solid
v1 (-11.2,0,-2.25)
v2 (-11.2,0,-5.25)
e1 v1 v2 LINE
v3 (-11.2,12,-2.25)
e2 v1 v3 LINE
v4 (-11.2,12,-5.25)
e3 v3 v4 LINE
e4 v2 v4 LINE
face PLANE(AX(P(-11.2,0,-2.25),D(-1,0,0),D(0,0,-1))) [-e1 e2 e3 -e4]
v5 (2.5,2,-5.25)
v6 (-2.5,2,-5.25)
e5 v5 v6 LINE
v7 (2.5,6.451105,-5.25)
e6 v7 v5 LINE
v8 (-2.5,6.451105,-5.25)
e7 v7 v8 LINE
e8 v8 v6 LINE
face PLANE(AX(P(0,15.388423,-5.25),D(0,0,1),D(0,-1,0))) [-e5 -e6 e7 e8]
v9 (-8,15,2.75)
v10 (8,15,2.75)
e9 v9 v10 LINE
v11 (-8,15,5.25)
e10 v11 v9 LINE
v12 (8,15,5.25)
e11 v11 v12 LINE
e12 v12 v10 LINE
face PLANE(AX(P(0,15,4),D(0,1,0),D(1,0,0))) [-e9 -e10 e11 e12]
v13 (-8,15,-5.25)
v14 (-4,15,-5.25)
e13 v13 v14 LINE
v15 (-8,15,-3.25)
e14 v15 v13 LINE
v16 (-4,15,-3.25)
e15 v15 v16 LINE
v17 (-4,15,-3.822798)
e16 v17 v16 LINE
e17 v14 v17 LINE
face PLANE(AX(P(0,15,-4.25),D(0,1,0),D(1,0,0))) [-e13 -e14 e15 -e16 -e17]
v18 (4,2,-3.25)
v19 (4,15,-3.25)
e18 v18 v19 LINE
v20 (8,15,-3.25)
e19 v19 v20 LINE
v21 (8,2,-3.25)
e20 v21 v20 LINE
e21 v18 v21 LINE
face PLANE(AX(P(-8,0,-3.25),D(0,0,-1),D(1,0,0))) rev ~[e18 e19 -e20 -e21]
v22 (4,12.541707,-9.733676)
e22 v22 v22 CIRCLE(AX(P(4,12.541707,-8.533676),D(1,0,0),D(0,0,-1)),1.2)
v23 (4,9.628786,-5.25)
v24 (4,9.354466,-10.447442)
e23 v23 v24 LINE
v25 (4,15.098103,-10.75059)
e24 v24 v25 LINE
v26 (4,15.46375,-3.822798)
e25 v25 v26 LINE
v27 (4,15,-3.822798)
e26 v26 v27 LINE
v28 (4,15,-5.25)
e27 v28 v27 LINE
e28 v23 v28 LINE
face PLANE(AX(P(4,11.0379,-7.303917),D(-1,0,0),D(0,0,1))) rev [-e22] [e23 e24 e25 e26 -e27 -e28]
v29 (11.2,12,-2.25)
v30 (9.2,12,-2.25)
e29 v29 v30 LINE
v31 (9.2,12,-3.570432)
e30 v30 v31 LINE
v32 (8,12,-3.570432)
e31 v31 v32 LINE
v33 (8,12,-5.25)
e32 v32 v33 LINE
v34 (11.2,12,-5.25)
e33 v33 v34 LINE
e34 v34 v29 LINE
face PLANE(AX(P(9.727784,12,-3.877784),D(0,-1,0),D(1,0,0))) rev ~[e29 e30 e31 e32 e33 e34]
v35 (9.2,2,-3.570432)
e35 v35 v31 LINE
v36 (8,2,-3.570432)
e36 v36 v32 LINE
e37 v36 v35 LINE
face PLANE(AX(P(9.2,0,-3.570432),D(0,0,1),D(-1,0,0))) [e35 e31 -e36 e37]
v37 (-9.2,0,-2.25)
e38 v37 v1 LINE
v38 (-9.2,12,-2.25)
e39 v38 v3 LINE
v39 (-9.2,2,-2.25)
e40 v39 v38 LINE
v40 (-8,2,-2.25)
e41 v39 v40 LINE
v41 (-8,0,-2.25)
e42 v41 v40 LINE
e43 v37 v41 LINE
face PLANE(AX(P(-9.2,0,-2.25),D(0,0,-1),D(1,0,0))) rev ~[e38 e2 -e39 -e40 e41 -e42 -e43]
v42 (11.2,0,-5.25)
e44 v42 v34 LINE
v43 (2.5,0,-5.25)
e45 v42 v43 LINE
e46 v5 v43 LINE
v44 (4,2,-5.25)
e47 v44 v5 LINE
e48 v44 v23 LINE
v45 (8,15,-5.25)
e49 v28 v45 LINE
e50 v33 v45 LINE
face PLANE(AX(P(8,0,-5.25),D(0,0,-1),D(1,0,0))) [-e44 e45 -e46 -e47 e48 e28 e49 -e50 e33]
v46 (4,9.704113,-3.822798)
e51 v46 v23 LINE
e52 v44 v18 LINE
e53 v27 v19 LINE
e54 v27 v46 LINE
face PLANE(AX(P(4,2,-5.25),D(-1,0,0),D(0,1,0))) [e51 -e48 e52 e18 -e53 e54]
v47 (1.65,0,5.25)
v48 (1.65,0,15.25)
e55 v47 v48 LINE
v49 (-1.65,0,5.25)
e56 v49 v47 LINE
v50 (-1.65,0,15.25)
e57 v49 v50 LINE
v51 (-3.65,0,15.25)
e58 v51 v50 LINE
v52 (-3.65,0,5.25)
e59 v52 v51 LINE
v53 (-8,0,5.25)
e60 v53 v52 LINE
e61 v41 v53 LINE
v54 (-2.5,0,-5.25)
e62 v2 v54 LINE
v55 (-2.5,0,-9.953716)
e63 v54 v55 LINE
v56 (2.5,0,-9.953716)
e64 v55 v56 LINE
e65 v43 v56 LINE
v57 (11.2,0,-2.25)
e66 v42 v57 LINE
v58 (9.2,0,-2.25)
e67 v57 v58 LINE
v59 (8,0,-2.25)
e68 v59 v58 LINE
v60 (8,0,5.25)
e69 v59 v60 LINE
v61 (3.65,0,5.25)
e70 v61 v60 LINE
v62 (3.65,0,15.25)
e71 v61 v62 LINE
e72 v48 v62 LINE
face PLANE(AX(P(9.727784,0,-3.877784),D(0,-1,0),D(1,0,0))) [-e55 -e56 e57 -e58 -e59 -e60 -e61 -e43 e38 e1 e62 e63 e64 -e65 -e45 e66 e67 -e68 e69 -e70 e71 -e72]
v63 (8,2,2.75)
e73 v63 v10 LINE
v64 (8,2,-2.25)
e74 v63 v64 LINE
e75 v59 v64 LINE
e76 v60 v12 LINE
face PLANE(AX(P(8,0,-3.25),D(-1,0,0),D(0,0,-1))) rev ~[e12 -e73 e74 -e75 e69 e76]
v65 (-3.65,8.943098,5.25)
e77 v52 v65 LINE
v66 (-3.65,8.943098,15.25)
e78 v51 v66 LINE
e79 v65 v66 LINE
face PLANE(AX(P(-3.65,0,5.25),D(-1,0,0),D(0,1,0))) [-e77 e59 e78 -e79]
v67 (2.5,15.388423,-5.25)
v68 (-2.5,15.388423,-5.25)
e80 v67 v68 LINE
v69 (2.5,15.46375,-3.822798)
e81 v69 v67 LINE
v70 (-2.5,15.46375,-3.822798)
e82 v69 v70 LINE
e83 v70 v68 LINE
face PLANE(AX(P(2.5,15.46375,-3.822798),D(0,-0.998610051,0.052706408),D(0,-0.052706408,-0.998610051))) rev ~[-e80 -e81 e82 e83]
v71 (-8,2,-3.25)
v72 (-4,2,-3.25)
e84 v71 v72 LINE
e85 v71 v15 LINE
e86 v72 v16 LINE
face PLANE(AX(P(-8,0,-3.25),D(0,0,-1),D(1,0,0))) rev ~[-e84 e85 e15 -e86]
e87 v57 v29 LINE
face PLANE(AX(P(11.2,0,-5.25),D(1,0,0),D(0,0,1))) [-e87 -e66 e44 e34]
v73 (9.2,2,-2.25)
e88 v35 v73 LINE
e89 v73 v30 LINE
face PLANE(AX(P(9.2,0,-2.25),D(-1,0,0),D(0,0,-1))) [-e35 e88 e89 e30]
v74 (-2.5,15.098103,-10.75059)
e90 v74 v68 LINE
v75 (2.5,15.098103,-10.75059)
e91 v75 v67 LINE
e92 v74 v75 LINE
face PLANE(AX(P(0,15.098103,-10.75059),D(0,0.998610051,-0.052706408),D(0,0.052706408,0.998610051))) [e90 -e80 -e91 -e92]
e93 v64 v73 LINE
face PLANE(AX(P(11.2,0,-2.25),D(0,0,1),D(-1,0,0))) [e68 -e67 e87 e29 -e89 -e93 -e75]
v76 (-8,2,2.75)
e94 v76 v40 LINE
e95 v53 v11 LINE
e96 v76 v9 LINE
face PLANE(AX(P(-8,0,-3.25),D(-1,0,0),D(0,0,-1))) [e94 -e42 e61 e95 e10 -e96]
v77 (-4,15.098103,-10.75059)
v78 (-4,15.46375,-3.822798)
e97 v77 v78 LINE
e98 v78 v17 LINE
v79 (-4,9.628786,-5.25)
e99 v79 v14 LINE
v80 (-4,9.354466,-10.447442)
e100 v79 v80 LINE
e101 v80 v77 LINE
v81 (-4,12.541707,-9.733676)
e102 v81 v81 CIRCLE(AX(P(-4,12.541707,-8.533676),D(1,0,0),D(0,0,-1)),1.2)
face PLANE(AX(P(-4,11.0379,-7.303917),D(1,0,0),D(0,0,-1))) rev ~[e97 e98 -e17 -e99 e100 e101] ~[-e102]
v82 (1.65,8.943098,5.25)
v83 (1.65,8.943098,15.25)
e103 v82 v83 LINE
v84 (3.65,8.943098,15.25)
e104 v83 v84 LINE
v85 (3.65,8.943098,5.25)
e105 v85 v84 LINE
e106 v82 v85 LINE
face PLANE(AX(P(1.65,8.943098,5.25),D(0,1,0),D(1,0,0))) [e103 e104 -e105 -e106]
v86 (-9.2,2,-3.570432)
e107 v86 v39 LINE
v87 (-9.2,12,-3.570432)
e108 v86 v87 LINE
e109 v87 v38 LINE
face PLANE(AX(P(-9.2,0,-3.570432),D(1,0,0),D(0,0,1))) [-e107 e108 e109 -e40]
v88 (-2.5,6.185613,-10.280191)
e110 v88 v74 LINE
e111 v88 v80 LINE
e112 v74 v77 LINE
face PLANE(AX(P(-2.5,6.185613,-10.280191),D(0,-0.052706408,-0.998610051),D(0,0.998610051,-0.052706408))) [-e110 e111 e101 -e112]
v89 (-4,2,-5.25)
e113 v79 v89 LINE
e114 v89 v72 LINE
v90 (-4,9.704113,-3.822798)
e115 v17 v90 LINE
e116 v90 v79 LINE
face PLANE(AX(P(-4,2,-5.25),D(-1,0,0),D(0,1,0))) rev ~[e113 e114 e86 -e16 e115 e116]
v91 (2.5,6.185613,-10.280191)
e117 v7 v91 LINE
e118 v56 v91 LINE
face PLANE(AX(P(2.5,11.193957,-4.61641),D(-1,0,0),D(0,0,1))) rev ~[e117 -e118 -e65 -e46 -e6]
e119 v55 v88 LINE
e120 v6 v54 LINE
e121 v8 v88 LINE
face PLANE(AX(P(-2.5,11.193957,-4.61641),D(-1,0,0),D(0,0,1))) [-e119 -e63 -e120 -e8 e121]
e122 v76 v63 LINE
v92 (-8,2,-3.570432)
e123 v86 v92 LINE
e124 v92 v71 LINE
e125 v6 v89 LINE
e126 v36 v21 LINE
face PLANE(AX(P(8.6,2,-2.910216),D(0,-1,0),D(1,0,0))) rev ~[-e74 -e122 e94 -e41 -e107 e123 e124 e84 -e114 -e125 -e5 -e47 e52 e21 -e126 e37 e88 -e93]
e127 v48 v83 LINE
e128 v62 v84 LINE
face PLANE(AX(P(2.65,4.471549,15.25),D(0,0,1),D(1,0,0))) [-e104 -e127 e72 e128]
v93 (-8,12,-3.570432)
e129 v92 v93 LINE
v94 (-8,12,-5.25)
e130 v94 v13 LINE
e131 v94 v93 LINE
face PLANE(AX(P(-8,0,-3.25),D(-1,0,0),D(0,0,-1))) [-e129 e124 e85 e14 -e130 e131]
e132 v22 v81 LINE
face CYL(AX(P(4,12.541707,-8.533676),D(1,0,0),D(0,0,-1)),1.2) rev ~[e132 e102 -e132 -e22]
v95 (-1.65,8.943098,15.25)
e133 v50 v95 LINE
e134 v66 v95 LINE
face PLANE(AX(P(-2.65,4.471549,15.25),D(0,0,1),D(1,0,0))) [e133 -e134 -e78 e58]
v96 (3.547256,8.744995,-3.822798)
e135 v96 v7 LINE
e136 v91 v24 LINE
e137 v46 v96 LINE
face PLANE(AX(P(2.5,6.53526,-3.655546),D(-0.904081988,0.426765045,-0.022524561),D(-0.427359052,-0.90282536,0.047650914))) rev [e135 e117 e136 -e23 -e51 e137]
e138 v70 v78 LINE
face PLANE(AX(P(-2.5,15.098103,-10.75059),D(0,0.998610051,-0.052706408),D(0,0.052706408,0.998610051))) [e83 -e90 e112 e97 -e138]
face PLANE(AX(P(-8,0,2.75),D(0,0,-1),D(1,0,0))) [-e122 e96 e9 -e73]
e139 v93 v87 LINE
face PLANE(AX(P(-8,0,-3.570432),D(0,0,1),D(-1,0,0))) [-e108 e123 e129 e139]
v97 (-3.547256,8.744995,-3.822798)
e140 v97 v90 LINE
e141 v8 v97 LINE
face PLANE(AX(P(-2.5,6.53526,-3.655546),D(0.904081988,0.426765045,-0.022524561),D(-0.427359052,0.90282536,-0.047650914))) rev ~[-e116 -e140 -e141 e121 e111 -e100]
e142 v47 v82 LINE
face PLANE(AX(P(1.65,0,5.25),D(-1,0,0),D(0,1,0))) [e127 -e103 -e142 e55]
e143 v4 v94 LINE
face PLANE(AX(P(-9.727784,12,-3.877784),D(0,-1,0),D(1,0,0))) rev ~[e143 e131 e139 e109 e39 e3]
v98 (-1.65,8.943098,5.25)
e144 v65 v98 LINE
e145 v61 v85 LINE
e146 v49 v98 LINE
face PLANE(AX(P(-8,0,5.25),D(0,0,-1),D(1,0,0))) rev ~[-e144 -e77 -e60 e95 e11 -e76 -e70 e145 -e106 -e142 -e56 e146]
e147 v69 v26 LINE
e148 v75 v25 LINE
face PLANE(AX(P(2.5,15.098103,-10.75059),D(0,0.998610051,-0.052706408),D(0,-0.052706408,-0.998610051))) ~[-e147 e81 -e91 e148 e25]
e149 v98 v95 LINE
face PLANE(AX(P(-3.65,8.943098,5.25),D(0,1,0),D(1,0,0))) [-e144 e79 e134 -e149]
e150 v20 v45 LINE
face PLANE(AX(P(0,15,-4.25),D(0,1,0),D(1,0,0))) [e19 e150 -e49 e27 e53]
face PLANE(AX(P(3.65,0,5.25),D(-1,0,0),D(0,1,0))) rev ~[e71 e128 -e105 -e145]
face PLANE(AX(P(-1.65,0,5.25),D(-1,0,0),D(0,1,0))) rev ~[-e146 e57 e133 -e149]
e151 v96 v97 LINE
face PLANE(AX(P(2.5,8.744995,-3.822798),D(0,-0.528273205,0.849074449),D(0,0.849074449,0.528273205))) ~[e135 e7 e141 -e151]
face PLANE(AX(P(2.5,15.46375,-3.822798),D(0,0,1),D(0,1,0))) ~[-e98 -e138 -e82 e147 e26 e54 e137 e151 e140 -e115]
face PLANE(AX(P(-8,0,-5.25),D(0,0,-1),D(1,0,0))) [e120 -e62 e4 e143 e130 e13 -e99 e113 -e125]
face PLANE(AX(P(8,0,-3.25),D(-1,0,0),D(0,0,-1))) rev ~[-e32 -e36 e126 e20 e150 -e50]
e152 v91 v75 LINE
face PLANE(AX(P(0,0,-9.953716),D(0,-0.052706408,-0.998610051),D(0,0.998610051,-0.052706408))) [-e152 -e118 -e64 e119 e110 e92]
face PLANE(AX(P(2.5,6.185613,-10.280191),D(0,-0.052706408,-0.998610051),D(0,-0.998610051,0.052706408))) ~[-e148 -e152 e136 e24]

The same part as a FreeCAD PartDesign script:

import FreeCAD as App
import Part
import Sketcher
from FreeCAD import Vector


def add_polygon(sketch, points):
    """Adds a closed chain of lines whose ends are joined by coincident constraints."""
    first, n = sketch.GeometryCount, len(points)
    for a, b in zip(points, points[1:] + points[:1]):
        sketch.addGeometry(Part.LineSegment(App.Vector(*a, 0), App.Vector(*b, 0)), False)
    for i in range(n):
        sketch.addConstraint(Sketcher.Constraint("Coincident", first + i, 2, first + (i + 1) % n, 1))

doc = App.newDocument("Part")
body = doc.addObject("PartDesign::Body", "Body")

sketch1 = body.newObject("Sketcher::SketchObject", "Sketch")
sketch1.AttachmentSupport = (doc.getObject("XZ_Plane"), [""])
sketch1.MapMode = "FlatFace"
add_polygon(sketch1, [(-8, -3), (-8, 3), (8, 3), (8, -3)])
sketch1.addConstraint([
    Sketcher.Constraint("Vertical", 0),
    Sketcher.Constraint("Horizontal", 1),
    Sketcher.Constraint("Vertical", 2),
    Sketcher.Constraint("Horizontal", 3),
    Sketcher.Constraint("DistanceX", 1, 1, 1, 2, 16.0),
    Sketcher.Constraint("DistanceY", 0, 1, 0, 2, 6.0),
    Sketcher.Constraint("DistanceX", 0, 2, -1, 1, 8.0),
    Sketcher.Constraint("DistanceY", -1, 1, 0, 2, 2.75),
])
pad1 = body.newObject("PartDesign::Pad", "Pad")
pad1.Profile = sketch1
pad1.Length = 2
pad1.Reversed = True

sketch2 = body.newObject("Sketcher::SketchObject", "Sketch001")
sketch2.AttachmentSupport = (doc.getObject("XZ_Plane"), [""])
sketch2.MapMode = "FlatFace"
add_polygon(sketch2, [(-8, -5.2), (-8, -3.2), (8, -3.2), (8, -5.2)])
add_polygon(sketch2, [(-8, 2.8), (-8, 5.2), (8, 5.2), (8, 2.8)])
sketch2.addConstraint([
    Sketcher.Constraint("Vertical", 0),
    Sketcher.Constraint("Horizontal", 1),
    Sketcher.Constraint("Vertical", 2),
    Sketcher.Constraint("Horizontal", 3),
    Sketcher.Constraint("Vertical", 4),
    Sketcher.Constraint("Horizontal", 5),
    Sketcher.Constraint("Vertical", 6),
    Sketcher.Constraint("Horizontal", 7),
    Sketcher.Constraint("Symmetric", 2, 2, 4, 2, -1, 1),
    Sketcher.Constraint("Vertical", 3, 2, 4, 2),
    Sketcher.Constraint("Vertical", 2, 2, 5, 2),
    Sketcher.Constraint("DistanceX", 1, 1, 1, 2, 16.0),
    Sketcher.Constraint("DistanceY", 0, 1, 0, 2, 2.0),
    Sketcher.Constraint("DistanceY", 4, 1, 4, 2, 2.5),
    Sketcher.Constraint("DistanceY", 1, 2, 6, 2, 6.0),
])
pad2 = body.newObject("PartDesign::Pad", "Pad001")
pad2.Profile = sketch2
pad2.Length = 15
pad2.Reversed = True

sketch3 = body.newObject("Sketcher::SketchObject", "Sketch002")
sketch3.AttachmentSupport = (doc.getObject("XY_Plane"), [""])
sketch3.MapMode = "FlatFace"
sketch3.AttachmentOffset = App.Placement(Vector(0, 0, -5.25), App.Rotation())
add_polygon(sketch3, [(4, 28), (4, 2), (-4, 2), (-4, 28)])
sketch3.addConstraint([
    Sketcher.Constraint("Vertical", 0),
    Sketcher.Constraint("Horizontal", 1),
    Sketcher.Constraint("Vertical", 2),
    Sketcher.Constraint("Horizontal", 3),
    Sketcher.Constraint("DistanceX", 1, 2, 1, 1, 8.0),
    Sketcher.Constraint("DistanceY", 0, 2, 0, 1, 26.0),
    Sketcher.Constraint("DistanceX", -1, 1, 0, 2, 4.0),
    Sketcher.Constraint("DistanceY", -1, 1, 0, 2, 2.0),
])
pocket1 = body.newObject("PartDesign::Pocket", "Pocket")
pocket1.Profile = sketch3
pocket1.Length = 2
pocket1.Reversed = True

sketch4 = body.newObject("Sketcher::SketchObject", "Sketch003")
sketch4.AttachmentSupport = (doc.getObject("YZ_Plane"), [""])
sketch4.MapMode = "FlatFace"
add_polygon(sketch4, [(0, -5.2), (0, -10), (15.1, -10.8), (15.4, -5.2)])
sketch4.addConstraint([
    Sketcher.Constraint("Vertical", 0),
    Sketcher.Constraint("Horizontal", 3),
    Sketcher.Constraint("PointOnObject", 0, 2, -2),
    Sketcher.Constraint("Perpendicular", 1, 2),
    Sketcher.Constraint("DistanceY", 2, 2, -1, 1, 5.25),
    Sketcher.Constraint("DistanceX", 3, 2, 3, 1, 15.388423),
    Sketcher.Constraint("DistanceY", 0, 2, 0, 1, 4.703716),
    Sketcher.Constraint("DistanceY", 1, 2, -1, 1, 10.75059),
])
pad3 = body.newObject("PartDesign::Pad", "Pad002")
pad3.Profile = sketch4
pad3.Length = 5
pad3.Midplane = True

sketch5 = body.newObject("Sketcher::SketchObject", "Sketch004")
sketch5.AttachmentSupport = (doc.getObject("YZ_Plane"), [""])
sketch5.MapMode = "FlatFace"
sketch5.AttachmentOffset = App.Placement(Vector(0, 0, 2.5), App.Rotation())
add_polygon(sketch5, [(8.7, -3.8), (6.5, -5.2), (15.4, -5.2), (15.5, -3.8)])
sketch5.addConstraint([
    Sketcher.Constraint("Horizontal", 1),
    Sketcher.Constraint("Horizontal", 3),
    Sketcher.Constraint("DistanceY", 0, 2, -1, 1, 5.25),
    Sketcher.Constraint("DistanceY", 2, 2, -1, 1, 3.822798),
    Sketcher.Constraint("Distance", 2, 1.429188),
    Sketcher.Constraint("DistanceX", 1, 1, 1, 2, 8.937318),
    Sketcher.Constraint("DistanceX", 3, 2, 3, 1, 6.718755),
    Sketcher.Constraint("DistanceX", -1, 1, 2, 2, 15.46375),
])
pad4 = body.newObject("PartDesign::Pad", "Pad003")
pad4.Profile = sketch5
pad4.Length = 5
pad4.Reversed = True

sketch6 = body.newObject("Sketcher::SketchObject", "Sketch005")
sketch6.AttachmentSupport = (doc.getObject("YZ_Plane"), [""])
sketch6.MapMode = "FlatFace"
sketch6.AttachmentOffset = App.Placement(Vector(0, 0, -2.5), App.Rotation())
add_polygon(sketch6, [(6.2, -10.3), (6.5, -5.2), (8.7, -3.8), (15.5, -3.8), (15.1, -10.8)])
sketch6.addConstraint([
    Sketcher.Constraint("Horizontal", 2),
    Sketcher.Constraint("Parallel", 0, 3),
    Sketcher.Constraint("Perpendicular", 3, 4),
    Sketcher.Constraint("DistanceY", 0, 2, -1, 1, 5.25),
    Sketcher.Constraint("DistanceY", 1, 2, -1, 1, 3.822798),
    Sketcher.Constraint("DistanceY", 3, 2, 4, 2, 0.470399),
    Sketcher.Constraint("DistanceX", 2, 1, 2, 2, 6.718755),
    Sketcher.Constraint("DistanceX", -1, 1, 2, 2, 15.46375),
    Sketcher.Constraint("DistanceY", 3, 2, -1, 1, 10.75059),
    Sketcher.Constraint("DistanceX", 0, 2, 1, 2, 2.29389),
])
pad5 = body.newObject("PartDesign::Pad", "Pad004")
pad5.Profile = sketch6
pad5.Length = 1.5
pad5.Reversed = True

sketch7 = body.newObject("Sketcher::SketchObject", "Sketch006")
sketch7.Placement = App.Placement(Vector(0, -0.174248, -3.30142), App.Rotation(Vector(-1, 0, 0), Vector(0, 0.998610051, -0.052706408), Vector(0, -0.052706408, -0.998610051), "ZXY"))
add_polygon(sketch7, [(4, 9.9), (2.5, 6.7), (4, 6.7)])
sketch7.addConstraint([
    Sketcher.Constraint("Horizontal", 1),
    Sketcher.Constraint("Vertical", 2),
    Sketcher.Constraint("DistanceX", 1, 1, 1, 2, 1.5),
    Sketcher.Constraint("DistanceX", -1, 1, 1, 2, 4.0),
    Sketcher.Constraint("Distance", 0, 3.509929),
    Sketcher.Constraint("DistanceY", -1, 1, 2, 2, 9.892111),
])
pocket2 = body.newObject("PartDesign::Pocket", "Pocket001")
pocket2.Profile = sketch7
pocket2.Length = 6.633865
pocket2.Reversed = True
doc.recompute()

mirrored = body.newObject("PartDesign::Mirrored", "Mirrored")
mirrored.Originals = [pad5, pocket2]
mirrored.MirrorPlane = (doc.getObject("YZ_Plane"), [""])
body.Tip = mirrored

sketch8 = body.newObject("Sketcher::SketchObject", "Sketch007")
sketch8.AttachmentSupport = (doc.getObject("YZ_Plane"), [""])
sketch8.MapMode = "FlatFace"
sketch8.AttachmentOffset = App.Placement(Vector(0, 0, 4), App.Rotation())
sketch8.addGeometry(Part.Circle(Vector(12.5, -8.5, 0), Vector(0, 0, 1), 1.2), False)
sketch8.addConstraint([
    Sketcher.Constraint("Diameter", 0, 2.4),
    Sketcher.Constraint("DistanceX", -1, 1, 0, 3, 12.541707),
    Sketcher.Constraint("DistanceY", 0, 3, -1, 1, 8.533676),
])
pocket3 = body.newObject("PartDesign::Pocket", "Pocket002")
pocket3.Profile = sketch8
pocket3.Length = 8

sketch9 = body.newObject("Sketcher::SketchObject", "Sketch008")
sketch9.AttachmentSupport = (doc.getObject("XZ_Plane"), [""])
sketch9.MapMode = "FlatFace"
add_polygon(sketch9, [(8, -2.3), (8, -3.6), (9.2, -3.6), (9.2, -2.3)])
add_polygon(sketch9, [(-9.2, -2.3), (-9.2, -3.6), (-8, -3.6), (-8, -2.3)])
sketch9.addConstraint([
    Sketcher.Constraint("Vertical", 0),
    Sketcher.Constraint("Horizontal", 1),
    Sketcher.Constraint("Vertical", 2),
    Sketcher.Constraint("Horizontal", 3),
    Sketcher.Constraint("Vertical", 4),
    Sketcher.Constraint("Horizontal", 5),
    Sketcher.Constraint("Vertical", 6),
    Sketcher.Constraint("Horizontal", 7),
    Sketcher.Constraint("Symmetric", 1, 2, 4, 2, -2),
    Sketcher.Constraint("Symmetric", 3, 2, 6, 2, -2),
    Sketcher.Constraint("DistanceX", 1, 1, 1, 2, 1.2),
    Sketcher.Constraint("DistanceX", -1, 1, 0, 2, 8.0),
    Sketcher.Constraint("DistanceY", 2, 2, -1, 1, 2.25),
    Sketcher.Constraint("DistanceY", 0, 2, 0, 1, 1.320432),
])
pad6 = body.newObject("PartDesign::Pad", "Pad005")
pad6.Profile = sketch9
pad6.Length = 2
pad6.Reversed = True

sketch10 = body.newObject("Sketcher::SketchObject", "Sketch009")
sketch10.AttachmentSupport = (doc.getObject("XZ_Plane"), [""])
sketch10.MapMode = "FlatFace"
add_polygon(sketch10, [(8, -3.6), (8, -5.2), (11.2, -5.2), (11.2, -2.2), (9.2, -2.2), (9.2, -3.6)])
add_polygon(sketch10, [(-8, -5.2), (-8, -3.6), (-9.2, -3.6), (-9.2, -2.2), (-11.2, -2.2), (-11.2, -5.2)])
sketch10.addConstraint([
    Sketcher.Constraint("Vertical", 0),
    Sketcher.Constraint("Horizontal", 1),
    Sketcher.Constraint("Vertical", 2),
    Sketcher.Constraint("Horizontal", 3),
    Sketcher.Constraint("Vertical", 4),
    Sketcher.Constraint("Horizontal", 5),
    Sketcher.Constraint("Vertical", 6),
    Sketcher.Constraint("Horizontal", 7),
    Sketcher.Constraint("Vertical", 8),
    Sketcher.Constraint("Horizontal", 9),
    Sketcher.Constraint("Vertical", 10),
    Sketcher.Constraint("Horizontal", 11),
    Sketcher.Constraint("Symmetric", 5, 2, 6, 2, -2),
    Sketcher.Constraint("Symmetric", 3, 2, 8, 2, -2),
    Sketcher.Constraint("Symmetric", 1, 2, 10, 2, -2),
    Sketcher.Constraint("DistanceX", 3, 2, 3, 1, 2.0),
    Sketcher.Constraint("DistanceY", 2, 1, 2, 2, 3.0),
    Sketcher.Constraint("DistanceX", 1, 1, 1, 2, 3.2),
    Sketcher.Constraint("DistanceX", -1, 1, 0, 2, 8.0),
    Sketcher.Constraint("DistanceY", 0, 2, -1, 1, 5.25),
    Sketcher.Constraint("DistanceY", 0, 2, 0, 1, 1.679568),
])
pad7 = body.newObject("PartDesign::Pad", "Pad006")
pad7.Profile = sketch10
pad7.Length = 12
pad7.Reversed = True

sketch11 = body.newObject("Sketcher::SketchObject", "Sketch010")
sketch11.AttachmentSupport = (doc.getObject("XY_Plane"), [""])
sketch11.MapMode = "FlatFace"
sketch11.AttachmentOffset = App.Placement(Vector(0, 0, 5.25), App.Rotation())
add_polygon(sketch11, [(1.6, 8.9), (1.6, 0), (3.6, 0), (3.6, 8.9)])
add_polygon(sketch11, [(-3.6, 8.9), (-3.6, 0), (-1.6, 0), (-1.6, 8.9)])
sketch11.addConstraint([
    Sketcher.Constraint("Vertical", 0),
    Sketcher.Constraint("Horizontal", 1),
    Sketcher.Constraint("Vertical", 2),
    Sketcher.Constraint("Horizontal", 3),
    Sketcher.Constraint("Vertical", 4),
    Sketcher.Constraint("Horizontal", 5),
    Sketcher.Constraint("Vertical", 6),
    Sketcher.Constraint("Horizontal", 7),
    Sketcher.Constraint("Symmetric", 1, 2, 4, 2, -1, 1),
    Sketcher.Constraint("Symmetric", 0, 2, 5, 2, -2),
    Sketcher.Constraint("Horizontal", 3, 2, 6, 2),
    Sketcher.Constraint("DistanceX", 1, 1, 1, 2, 2.0),
    Sketcher.Constraint("DistanceX", 4, 2, 0, 2, 5.3),
    Sketcher.Constraint("DistanceY", 0, 2, 0, 1, 8.943098),
])
pad8 = body.newObject("PartDesign::Pad", "Pad007")
pad8.Profile = sketch11
pad8.Length = 10

doc.recompute()
